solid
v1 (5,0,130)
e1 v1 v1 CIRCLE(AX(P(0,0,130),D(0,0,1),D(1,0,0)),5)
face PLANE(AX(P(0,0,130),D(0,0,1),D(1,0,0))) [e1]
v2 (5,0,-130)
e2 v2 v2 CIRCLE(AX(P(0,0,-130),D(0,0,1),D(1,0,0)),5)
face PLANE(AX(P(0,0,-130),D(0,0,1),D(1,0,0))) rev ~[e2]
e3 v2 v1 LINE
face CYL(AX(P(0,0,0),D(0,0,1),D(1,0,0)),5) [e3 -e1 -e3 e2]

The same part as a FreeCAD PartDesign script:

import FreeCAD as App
import Part
import Sketcher

V = App.Vector

doc = App.newDocument("Part")
params = doc.addObject("Spreadsheet::Sheet", "Params")
for row, (alias, value) in enumerate([
    ("sketch1_diameter", "10 mm"),
    ("pad1_length", "130 mm"),
    ("pad1_length2", "130 mm"),
], start=1):
    params.set(f"A{row}", alias)
    params.set(f"B{row}", "=" + value)
    params.setAlias(f"B{row}", alias)

body = doc.addObject("PartDesign::Body", "Body")

sketch1 = body.newObject("Sketcher::SketchObject", "Sketch")
sketch1.AttachmentSupport = (doc.getObject("XY_Plane"), [""])
sketch1.MapMode = "FlatFace"
sketch1.addGeometry(Part.Circle(V(0, 0, 0), V(0, 0, 1), 5), False)
sketch1.addConstraint([
    Sketcher.Constraint("Coincident", 0, 3, -1, 1),
    Sketcher.Constraint("Diameter", 0, 10.0),
])
sketch1.setExpression("Constraints[1]", "Params.sketch1_diameter")
pad1 = body.newObject("PartDesign::Pad", "Pad")
pad1.Profile = sketch1
pad1.Type = "TwoLengths"
pad1.setExpression("Length", "Params.pad1_length")
pad1.setExpression("Length2", "Params.pad1_length2")

doc.recompute()
